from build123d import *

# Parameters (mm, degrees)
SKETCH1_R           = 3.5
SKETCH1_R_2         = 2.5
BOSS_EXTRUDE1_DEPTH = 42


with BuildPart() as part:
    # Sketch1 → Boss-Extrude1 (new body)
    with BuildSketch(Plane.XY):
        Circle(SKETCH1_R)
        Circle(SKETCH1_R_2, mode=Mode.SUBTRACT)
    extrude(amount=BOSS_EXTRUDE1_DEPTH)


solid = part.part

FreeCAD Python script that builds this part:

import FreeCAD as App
import Part
import Sketcher

V = App.Vector

doc = App.newDocument("Part")
body = doc.addObject("PartDesign::Body", "Body")

# Sketch on XY plane
sketch1 = body.newObject("Sketcher::SketchObject", "Sketch")
sketch1.AttachmentSupport = (doc.getObject("XY_Plane"), [""])
sketch1.MapMode = "FlatFace"
sketch1.addGeometry(Part.Circle(V(0, 0, 0), V(0, 0, 1), 3.5), False)
sketch1.addGeometry(Part.Circle(V(0, 0, 0), V(0, 0, 1), 2.5), False)
sketch1.addConstraint(Sketcher.Constraint("Coincident", 0, 3, -1, 1))
sketch1.addConstraint(Sketcher.Constraint("Coincident", 1, 3, -1, 1))
sketch1.addConstraint(Sketcher.Constraint("Diameter", 0, 7.0))
sketch1.addConstraint(Sketcher.Constraint("Diameter", 1, 5.0))
pad1 = body.newObject("PartDesign::Pad", "Pad")
pad1.Profile = sketch1
pad1.Length = 42

doc.recompute()
